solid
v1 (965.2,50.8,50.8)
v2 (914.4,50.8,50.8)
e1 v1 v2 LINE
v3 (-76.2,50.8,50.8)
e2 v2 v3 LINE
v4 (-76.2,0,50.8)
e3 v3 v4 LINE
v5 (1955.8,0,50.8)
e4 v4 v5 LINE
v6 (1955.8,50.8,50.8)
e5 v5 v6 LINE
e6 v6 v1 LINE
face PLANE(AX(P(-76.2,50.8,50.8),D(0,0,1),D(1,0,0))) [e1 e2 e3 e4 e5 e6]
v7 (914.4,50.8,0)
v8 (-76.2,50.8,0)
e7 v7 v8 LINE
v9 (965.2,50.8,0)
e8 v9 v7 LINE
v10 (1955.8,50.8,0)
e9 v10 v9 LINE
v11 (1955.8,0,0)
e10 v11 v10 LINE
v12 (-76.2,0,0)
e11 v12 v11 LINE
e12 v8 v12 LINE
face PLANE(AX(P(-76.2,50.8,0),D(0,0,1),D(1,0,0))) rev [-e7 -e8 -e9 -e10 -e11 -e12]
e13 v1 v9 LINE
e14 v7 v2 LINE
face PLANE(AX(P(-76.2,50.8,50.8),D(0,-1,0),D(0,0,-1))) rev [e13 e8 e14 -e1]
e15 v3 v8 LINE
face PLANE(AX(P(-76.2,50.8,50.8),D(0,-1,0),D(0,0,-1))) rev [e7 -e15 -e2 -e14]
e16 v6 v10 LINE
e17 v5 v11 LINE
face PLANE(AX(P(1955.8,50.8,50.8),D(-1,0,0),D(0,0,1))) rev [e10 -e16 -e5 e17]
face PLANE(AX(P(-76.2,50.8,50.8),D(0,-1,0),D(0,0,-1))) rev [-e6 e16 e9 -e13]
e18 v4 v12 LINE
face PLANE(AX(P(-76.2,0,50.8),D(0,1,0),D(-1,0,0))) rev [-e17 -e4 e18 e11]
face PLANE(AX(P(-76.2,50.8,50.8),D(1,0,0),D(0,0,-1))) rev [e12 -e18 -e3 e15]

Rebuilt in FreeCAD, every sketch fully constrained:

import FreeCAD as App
import Part
import Sketcher
Q = App.Units.Quantity

doc = App.newDocument("Part")
body = doc.addObject("PartDesign::Body", "Body")

sketch1 = body.newObject("Sketcher::SketchObject", "Sketch")
sketch1.AttachmentSupport = (doc.getObject("XY_Plane"), [""])
sketch1.MapMode = "FlatFace"
sketch1.addGeometry([
    Part.LineSegment(App.Vector(-76, 51, 0), App.Vector(-76, 0, 0)),
    Part.LineSegment(App.Vector(-76, 0, 0), App.Vector(1956, 0, 0)),
    Part.LineSegment(App.Vector(1956, 0, 0), App.Vector(1956, 51, 0)),
    Part.LineSegment(App.Vector(1956, 51, 0), App.Vector(-76, 51, 0)),
], False)
sketch1.addConstraint([
    Sketcher.Constraint("Coincident", 0, 2, 1, 1),
    Sketcher.Constraint("Coincident", 1, 2, 2, 1),
    Sketcher.Constraint("Coincident", 2, 2, 3, 1),
    Sketcher.Constraint("Coincident", 3, 2, 0, 1),
    Sketcher.Constraint("Vertical", 0),
    Sketcher.Constraint("Horizontal", 1),
    Sketcher.Constraint("Vertical", 2),
    Sketcher.Constraint("Horizontal", 3),
    Sketcher.Constraint("PointOnObject", 0, 2, -1),
    Sketcher.Constraint("DistanceX", 1, 1, 1, 2, Q("80 in")),
    Sketcher.Constraint("DistanceY", 0, 2, 0, 1, Q("2 in")),
    Sketcher.Constraint("DistanceX", 0, 2, -1, 1, Q("3 in")),
])
pad1 = body.newObject("PartDesign::Pad", "Pad")
pad1.Profile = sketch1
pad1.Length = Q("2 in")

doc.recompute()
